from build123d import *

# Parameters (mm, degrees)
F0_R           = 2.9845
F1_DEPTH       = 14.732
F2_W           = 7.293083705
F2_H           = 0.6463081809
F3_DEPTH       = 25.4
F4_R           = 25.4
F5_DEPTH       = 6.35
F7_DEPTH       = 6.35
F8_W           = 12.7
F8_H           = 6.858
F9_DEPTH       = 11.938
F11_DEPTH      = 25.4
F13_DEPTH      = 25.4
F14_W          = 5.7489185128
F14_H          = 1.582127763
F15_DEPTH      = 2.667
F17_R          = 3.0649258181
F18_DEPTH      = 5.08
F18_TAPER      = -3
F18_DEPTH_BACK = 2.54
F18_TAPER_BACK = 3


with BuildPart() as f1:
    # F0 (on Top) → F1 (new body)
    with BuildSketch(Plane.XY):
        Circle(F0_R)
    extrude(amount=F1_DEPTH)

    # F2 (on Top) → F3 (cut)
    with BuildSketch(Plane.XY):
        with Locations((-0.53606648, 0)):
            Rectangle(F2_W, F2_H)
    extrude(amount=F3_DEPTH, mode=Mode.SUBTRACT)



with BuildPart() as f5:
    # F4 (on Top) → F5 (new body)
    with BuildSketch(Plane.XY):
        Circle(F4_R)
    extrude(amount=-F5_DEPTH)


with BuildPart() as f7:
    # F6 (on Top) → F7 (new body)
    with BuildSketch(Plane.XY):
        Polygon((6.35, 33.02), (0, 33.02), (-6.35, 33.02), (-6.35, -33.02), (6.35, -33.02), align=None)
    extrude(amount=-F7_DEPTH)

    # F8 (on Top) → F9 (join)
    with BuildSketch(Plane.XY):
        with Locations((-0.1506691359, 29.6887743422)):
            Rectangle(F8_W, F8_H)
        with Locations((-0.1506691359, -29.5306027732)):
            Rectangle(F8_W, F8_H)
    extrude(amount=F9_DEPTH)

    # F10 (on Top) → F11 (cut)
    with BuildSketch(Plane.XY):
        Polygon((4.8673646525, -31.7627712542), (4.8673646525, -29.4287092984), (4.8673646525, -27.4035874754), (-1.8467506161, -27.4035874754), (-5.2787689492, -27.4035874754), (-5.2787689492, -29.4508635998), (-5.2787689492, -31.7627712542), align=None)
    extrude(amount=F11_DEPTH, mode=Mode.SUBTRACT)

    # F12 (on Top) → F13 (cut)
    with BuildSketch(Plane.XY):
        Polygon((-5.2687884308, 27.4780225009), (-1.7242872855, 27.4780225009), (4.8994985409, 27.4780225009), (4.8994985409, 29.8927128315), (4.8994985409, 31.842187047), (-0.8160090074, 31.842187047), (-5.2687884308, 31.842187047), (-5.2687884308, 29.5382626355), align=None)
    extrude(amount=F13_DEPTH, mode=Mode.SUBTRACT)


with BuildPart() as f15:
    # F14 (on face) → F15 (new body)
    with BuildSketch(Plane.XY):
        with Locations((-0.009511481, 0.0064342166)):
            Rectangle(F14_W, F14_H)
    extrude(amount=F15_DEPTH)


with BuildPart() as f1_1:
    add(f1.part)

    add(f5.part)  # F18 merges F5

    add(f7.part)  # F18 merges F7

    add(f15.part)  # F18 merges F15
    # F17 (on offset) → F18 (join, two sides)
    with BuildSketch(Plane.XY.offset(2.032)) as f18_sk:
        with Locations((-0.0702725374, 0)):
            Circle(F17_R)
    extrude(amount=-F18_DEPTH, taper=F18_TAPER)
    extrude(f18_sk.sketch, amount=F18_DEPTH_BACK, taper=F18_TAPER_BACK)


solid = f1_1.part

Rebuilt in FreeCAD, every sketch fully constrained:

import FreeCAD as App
import Part
import Sketcher
Q = App.Units.Quantity


def add_polygon(sketch, points):
    """Adds a closed chain of lines whose ends are joined by coincident constraints."""
    first, n = sketch.GeometryCount, len(points)
    for a, b in zip(points, points[1:] + points[:1]):
        sketch.addGeometry(Part.LineSegment(App.Vector(*a, 0), App.Vector(*b, 0)), False)
    for i in range(n):
        sketch.addConstraint(Sketcher.Constraint("Coincident", first + i, 2, first + (i + 1) % n, 1))

doc = App.newDocument("Part")
body = doc.addObject("PartDesign::Body", "Body")
body.AllowCompound = True

sketch1 = doc.addObject("Sketcher::SketchObject", "Sketch")
body.addObject(sketch1)
sketch1.AttachmentSupport = (doc.XY_Plane, [""])
sketch1.MapMode = "FlatFace"
sketch1.addGeometry(Part.Circle(App.Vector(0, 0, 0), App.Vector(0, 0, 1), 3), False)
sketch1.addConstraint([
    Sketcher.Constraint("Coincident", 0, 3, -1, 1),
    Sketcher.Constraint("Diameter", 0, Q("0.235 in")),
])
pad1 = doc.addObject("PartDesign::Pad", "Pad")
body.addObject(pad1)
pad1.Profile = sketch1
pad1.Length = Q("0.58 in")

sketch2 = doc.addObject("Sketcher::SketchObject", "Sketch001")
body.addObject(sketch2)
sketch2.AttachmentSupport = (doc.XY_Plane, [""])
sketch2.MapMode = "FlatFace"
add_polygon(sketch2, [(-4.2, 0.3), (-4.2, -0.3), (3.1, -0.3), (3.1, 0.3)])
sketch2.addConstraint([
    Sketcher.Constraint("Vertical", 0),
    Sketcher.Constraint("Horizontal", 1),
    Sketcher.Constraint("Vertical", 2),
    Sketcher.Constraint("Horizontal", 3),
    Sketcher.Constraint("DistanceY", 0, 2, 0, 1, Q("0.646308 mm")),
    Sketcher.Constraint("DistanceX", 1, 1, 1, 2, Q("7.293084 mm")),
    Sketcher.Constraint("DistanceX", 0, 2, -1, 1, Q("4.182608 mm")),
    Sketcher.Constraint("DistanceY", 0, 2, -1, 1, Q("0.323154 mm")),
])
pocket1 = doc.addObject("PartDesign::Pocket", "Pocket")
body.addObject(pocket1)
pocket1.Profile = sketch2
pocket1.Length = Q("1 in")
pocket1.Reversed = True
body2 = doc.addObject("PartDesign::Body", "Body001")

sketch3 = doc.addObject("Sketcher::SketchObject", "Sketch002")
body2.addObject(sketch3)
sketch3.AttachmentSupport = (doc.getObject("XY_Plane001"), [""])
sketch3.MapMode = "FlatFace"
sketch3.addGeometry(Part.Circle(App.Vector(0, 0, 0), App.Vector(0, 0, 1), 25), False)
sketch3.addConstraint([
    Sketcher.Constraint("Coincident", 0, 3, -1, 1),
    Sketcher.Constraint("Diameter", 0, Q("2 in")),
])
pad2 = doc.addObject("PartDesign::Pad", "Pad001")
body2.addObject(pad2)
pad2.Profile = sketch3
pad2.Length = Q("0.25 in")
pad2.Reversed = True
body3 = doc.addObject("PartDesign::Body", "Body002")

sketch4 = doc.addObject("Sketcher::SketchObject", "Sketch003")
body3.addObject(sketch4)
sketch4.AttachmentSupport = (doc.getObject("XY_Plane002"), [""])
sketch4.MapMode = "FlatFace"
add_polygon(sketch4, [(6, 33), (-6, 33), (-6, -33), (6, -33)])
sketch4.addConstraint([
    Sketcher.Constraint("Horizontal", 0),
    Sketcher.Constraint("Vertical", 1),
    Sketcher.Constraint("Horizontal", 2),
    Sketcher.Constraint("Vertical", 3),
    Sketcher.Constraint("Symmetric", 0, 2, 2, 2, -1, 1),
    Sketcher.Constraint("DistanceX", 0, 2, 0, 1, Q("0.5 in")),
    Sketcher.Constraint("DistanceY", 1, 2, 1, 1, Q("2.6 in")),
])
pad3 = doc.addObject("PartDesign::Pad", "Pad002")
body3.addObject(pad3)
pad3.Profile = sketch4
pad3.Length = Q("0.25 in")
pad3.Reversed = True

sketch5 = doc.addObject("Sketcher::SketchObject", "Sketch004")
body3.addObject(sketch5)
sketch5.AttachmentSupport = (doc.getObject("XY_Plane002"), [""])
sketch5.MapMode = "FlatFace"
add_polygon(sketch5, [(-7, 33), (-7, 26), (6, 26), (6, 33)])
add_polygon(sketch5, [(-7, -26), (-7, -33), (6, -33), (6, -26)])
sketch5.addConstraint([
    Sketcher.Constraint("Vertical", 0),
    Sketcher.Constraint("Horizontal", 1),
    Sketcher.Constraint("Vertical", 2),
    Sketcher.Constraint("Horizontal", 3),
    Sketcher.Constraint("Vertical", 4),
    Sketcher.Constraint("Horizontal", 5),
    Sketcher.Constraint("Vertical", 6),
    Sketcher.Constraint("Horizontal", 7),
    Sketcher.Constraint("Vertical", 3, 2, 4, 2),
    Sketcher.Constraint("Vertical", 2, 2, 5, 2),
    Sketcher.Constraint("Equal", 2, 4),
    Sketcher.Constraint("DistanceX", 1, 1, 1, 2, Q("0.5 in")),
    Sketcher.Constraint("DistanceY", 0, 2, 0, 1, Q("0.27 in")),
    Sketcher.Constraint("DistanceX", 0, 2, -1, 1, Q("6.500669 mm")),
    Sketcher.Constraint("DistanceY", -1, 1, 0, 2, Q("26.259774 mm")),
    Sketcher.Constraint("DistanceY", 4, 2, -1, 1, Q("32.959603 mm")),
])
pad4 = doc.addObject("PartDesign::Pad", "Pad003")
body3.addObject(pad4)
pad4.Profile = sketch5
pad4.Length = Q("0.47 in")

sketch6 = doc.addObject("Sketcher::SketchObject", "Sketch005")
body3.addObject(sketch6)
sketch6.AttachmentSupport = (doc.getObject("XY_Plane002"), [""])
sketch6.MapMode = "FlatFace"
add_polygon(sketch6, [(4.9, -31.8), (4.9, -27.4), (-5.3, -27.4), (-5.3, -31.8)])
sketch6.addConstraint([
    Sketcher.Constraint("Vertical", 0),
    Sketcher.Constraint("Horizontal", 1),
    Sketcher.Constraint("Vertical", 2),
    Sketcher.Constraint("Horizontal", 3),
    Sketcher.Constraint("DistanceX", 1, 2, 1, 1, Q("10.146134 mm")),
    Sketcher.Constraint("DistanceY", 0, 1, 0, 2, Q("4.359184 mm")),
    Sketcher.Constraint("DistanceX", 1, 2, -1, 1, Q("5.278769 mm")),
    Sketcher.Constraint("DistanceY", 2, 2, -1, 1, Q("31.762771 mm")),
])
pocket2 = doc.addObject("PartDesign::Pocket", "Pocket001")
body3.addObject(pocket2)
pocket2.Profile = sketch6
pocket2.Length = Q("1 in")
pocket2.Reversed = True

sketch7 = doc.addObject("Sketcher::SketchObject", "Sketch006")
body3.addObject(sketch7)
sketch7.AttachmentSupport = (doc.getObject("XY_Plane002"), [""])
sketch7.MapMode = "FlatFace"
add_polygon(sketch7, [(-5.3, 27.5), (4.9, 27.5), (4.9, 31.8), (-5.3, 31.8)])
sketch7.addConstraint([
    Sketcher.Constraint("Horizontal", 0),
    Sketcher.Constraint("Vertical", 1),
    Sketcher.Constraint("Horizontal", 2),
    Sketcher.Constraint("Vertical", 3),
    Sketcher.Constraint("DistanceX", -1, 1, 0, 2, Q("4.899499 mm")),
    Sketcher.Constraint("DistanceX", 0, 1, 0, 2, Q("10.168287 mm")),
    Sketcher.Constraint("DistanceY", 1, 1, 1, 2, Q("4.364165 mm")),
    Sketcher.Constraint("DistanceY", -1, 1, 0, 2, Q("27.478023 mm")),
])
pocket3 = doc.addObject("PartDesign::Pocket", "Pocket002")
body3.addObject(pocket3)
pocket3.Profile = sketch7
pocket3.Length = Q("1 in")
pocket3.Reversed = True
body4 = doc.addObject("PartDesign::Body", "Body003")

sketch8 = doc.addObject("Sketcher::SketchObject", "Sketch007")
body4.addObject(sketch8)
sketch8.AttachmentSupport = (doc.getObject("XY_Plane003"), [""])
sketch8.MapMode = "FlatFace"
add_polygon(sketch8, [(-2.9, 0.8), (-2.9, -0.8), (2.9, -0.8), (2.9, 0.8)])
sketch8.addConstraint([
    Sketcher.Constraint("Vertical", 0),
    Sketcher.Constraint("Horizontal", 1),
    Sketcher.Constraint("Vertical", 2),
    Sketcher.Constraint("Horizontal", 3),
    Sketcher.Constraint("DistanceX", 1, 1, 1, 2, Q("5.748919 mm")),
    Sketcher.Constraint("DistanceY", -1, 1, 2, 2, Q("0.797498 mm")),
    Sketcher.Constraint("DistanceY", 0, 2, 0, 1, Q("1.582128 mm")),
    Sketcher.Constraint("DistanceX", 0, 2, -1, 1, Q("2.883971 mm")),
])
pad5 = doc.addObject("PartDesign::Pad", "Pad004")
body4.addObject(pad5)
pad5.Profile = sketch8
pad5.Length = Q("0.105 in")
doc.recompute()

boolean = doc.addObject("PartDesign::Boolean", "Boolean")
body.addObject(boolean)
boolean.Type = "Fuse"
boolean.addObjects([body2])
doc.recompute()

boolean2 = doc.addObject("PartDesign::Boolean", "Boolean001")
body.addObject(boolean2)
boolean2.Type = "Fuse"
boolean2.addObjects([body3])
doc.recompute()

boolean3 = doc.addObject("PartDesign::Boolean", "Boolean002")
body.addObject(boolean3)
boolean3.Type = "Fuse"
boolean3.addObjects([body4])

sketch9 = doc.addObject("Sketcher::SketchObject", "Sketch008")
body.addObject(sketch9)
sketch9.AttachmentSupport = (doc.XY_Plane, [""])
sketch9.MapMode = "FlatFace"
sketch9.AttachmentOffset = App.Placement(App.Vector(0, 0, 0.08 * 25.4), App.Rotation())
sketch9.addGeometry(Part.Circle(App.Vector(-0.1, 0, 0), App.Vector(0, 0, 1), 3.1), False)
sketch9.addConstraint([
    Sketcher.Constraint("PointOnObject", 0, 3, -1),
    Sketcher.Constraint("Diameter", 0, Q("6.129852 mm")),
    Sketcher.Constraint("DistanceX", 0, 3, -1, 1, Q("0.070273 mm")),
])
pad6 = doc.addObject("PartDesign::Pad", "Pad005")
body.addObject(pad6)
pad6.Profile = sketch9
pad6.Length = Q("0.2 in")
pad6.Reversed = True
pad6.TaperAngle = 3
pad7 = doc.addObject("PartDesign::Pad", "Pad006")
body.addObject(pad7)
pad7.Profile = sketch9
pad7.Length = Q("0.1 in")
pad7.TaperAngle = -3

doc.recompute()
